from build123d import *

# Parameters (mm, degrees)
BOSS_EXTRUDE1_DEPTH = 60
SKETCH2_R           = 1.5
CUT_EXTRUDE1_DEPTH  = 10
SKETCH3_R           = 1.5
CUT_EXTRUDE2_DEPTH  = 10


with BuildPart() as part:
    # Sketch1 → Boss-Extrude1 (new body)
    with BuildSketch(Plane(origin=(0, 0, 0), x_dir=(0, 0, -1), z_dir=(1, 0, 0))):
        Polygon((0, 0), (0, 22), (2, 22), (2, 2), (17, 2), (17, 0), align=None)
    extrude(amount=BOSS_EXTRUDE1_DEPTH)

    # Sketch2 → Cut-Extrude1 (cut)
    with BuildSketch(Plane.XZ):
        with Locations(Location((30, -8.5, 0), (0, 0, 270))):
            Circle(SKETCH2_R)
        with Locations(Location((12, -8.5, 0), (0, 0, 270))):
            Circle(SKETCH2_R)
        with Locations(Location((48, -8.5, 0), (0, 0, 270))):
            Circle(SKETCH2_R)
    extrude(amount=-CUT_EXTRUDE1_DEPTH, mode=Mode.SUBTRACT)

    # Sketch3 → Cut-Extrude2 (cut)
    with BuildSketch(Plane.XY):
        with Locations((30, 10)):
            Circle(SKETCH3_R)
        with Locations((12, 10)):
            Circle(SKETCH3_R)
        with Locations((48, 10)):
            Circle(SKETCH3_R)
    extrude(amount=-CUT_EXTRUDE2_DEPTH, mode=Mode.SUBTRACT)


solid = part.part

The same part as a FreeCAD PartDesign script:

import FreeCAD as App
import Part
import Sketcher
from FreeCAD import Vector
Q = App.Units.Quantity


def add_polygon(sketch, points):
    """Adds a closed chain of lines whose ends are joined by coincident constraints."""
    first, n = sketch.GeometryCount, len(points)
    for a, b in zip(points, points[1:] + points[:1]):
        sketch.addGeometry(Part.LineSegment(App.Vector(*a, 0), App.Vector(*b, 0)), False)
    for i in range(n):
        sketch.addConstraint(Sketcher.Constraint("Coincident", first + i, 2, first + (i + 1) % n, 1))

doc = App.newDocument("Part")
params = doc.addObject("Spreadsheet::Sheet", "Params")
for row, (alias, value) in enumerate([
    ("sketch1_width", "22 mm"),
    ("sketch1_width2", "2 mm"),
    ("sketch1_height", "17 mm"),
    ("pad1_length", "60 mm"),
    ("sketch2_diameter", "3 mm"),
    ("pocket1_length", "10 mm"),
    ("sketch3_diameter", "3 mm"),
    ("pocket2_length", "10 mm"),
], start=1):
    params.set(f"A{row}", alias)
    params.set(f"B{row}", "=" + value)
    params.setAlias(f"B{row}", alias)

body = doc.addObject("PartDesign::Body", "Body")

# Sketch on YZ plane
sketch1 = body.newObject("Sketcher::SketchObject", "Sketch")
sketch1.AttachmentSupport = (doc.getObject("YZ_Plane"), [""])
sketch1.MapMode = "FlatFace"
add_polygon(sketch1, [(22, 0), (0, 0), (0, -17), (2, -17), (2, -2), (22, -2)])  # lines 0-5
sketch1.addConstraint([
    Sketcher.Constraint("Horizontal", 0),
    Sketcher.Constraint("Vertical", 1),
    Sketcher.Constraint("Horizontal", 2),
    Sketcher.Constraint("Vertical", 3),
    Sketcher.Constraint("Horizontal", 4),
    Sketcher.Constraint("Vertical", 5),
    Sketcher.Constraint("Coincident", 0, 2, -1, 1),
    Sketcher.Constraint("Equal", 2, 5),
    Sketcher.Constraint("DistanceX", 0, 2, 0, 1, Q("22 mm")),
    Sketcher.Constraint("DistanceX", 2, 1, 2, 2, Q("2 mm")),
    Sketcher.Constraint("DistanceY", 1, 2, 1, 1, Q("17 mm")),
])
sketch1.setExpression("Constraints[14]", "Params.sketch1_width")
sketch1.setExpression("Constraints[15]", "Params.sketch1_width2")
sketch1.setExpression("Constraints[16]", "Params.sketch1_height")
pad1 = body.newObject("PartDesign::Pad", "Pad")
pad1.Profile = sketch1
pad1.setExpression("Length", "Params.pad1_length")

# Sketch on XZ plane
sketch2 = body.newObject("Sketcher::SketchObject", "Sketch001")
sketch2.AttachmentSupport = (doc.getObject("XZ_Plane"), [""])
sketch2.MapMode = "FlatFace"
sketch2.addGeometry([
    Part.Circle(Vector(30, -8.5, 0), Vector(0, 0, 1), 1.5),
    Part.Circle(Vector(12, -8.5, 0), Vector(0, 0, 1), 1.5),
    Part.Circle(Vector(48, -8.5, 0), Vector(0, 0, 1), 1.5),
], False)
sketch2.addConstraint([
    Sketcher.Constraint("Equal", 0, 1),
    Sketcher.Constraint("Equal", 1, 2),
    Sketcher.Constraint("Horizontal", 0, 3, 1, 3),
    Sketcher.Constraint("Horizontal", 1, 3, 2, 3),
    Sketcher.Constraint("Diameter", 0, Q("3 mm")),
    Sketcher.Constraint("DistanceX", -1, 1, 0, 3, Q("30 mm")),
    Sketcher.Constraint("DistanceX", -1, 1, 1, 3, Q("12 mm")),
    Sketcher.Constraint("DistanceX", -1, 1, 2, 3, Q("48 mm")),
    Sketcher.Constraint("DistanceY", 0, 3, -1, 1, Q("8.5 mm")),
])
sketch2.setExpression("Constraints[4]", "Params.sketch2_diameter")
pocket1 = body.newObject("PartDesign::Pocket", "Pocket")
pocket1.Profile = sketch2
pocket1.setExpression("Length", "Params.pocket1_length")

# Sketch on XY plane
sketch3 = body.newObject("Sketcher::SketchObject", "Sketch002")
sketch3.AttachmentSupport = (doc.getObject("XY_Plane"), [""])
sketch3.MapMode = "FlatFace"
sketch3.addGeometry([
    Part.Circle(Vector(30, 10, 0), Vector(0, 0, 1), 1.5),
    Part.Circle(Vector(12, 10, 0), Vector(0, 0, 1), 1.5),
    Part.Circle(Vector(48, 10, 0), Vector(0, 0, 1), 1.5),
], False)
sketch3.addConstraint([
    Sketcher.Constraint("Equal", 0, 1),
    Sketcher.Constraint("Equal", 1, 2),
    Sketcher.Constraint("Horizontal", 0, 3, 1, 3),
    Sketcher.Constraint("Horizontal", 1, 3, 2, 3),
    Sketcher.Constraint("Diameter", 0, Q("3 mm")),
    Sketcher.Constraint("DistanceX", -1, 1, 0, 3, Q("30 mm")),
    Sketcher.Constraint("DistanceY", -1, 1, 0, 3, Q("10 mm")),
    Sketcher.Constraint("DistanceX", -1, 1, 1, 3, Q("12 mm")),
    Sketcher.Constraint("DistanceX", -1, 1, 2, 3, Q("48 mm")),
])
sketch3.setExpression("Constraints[4]", "Params.sketch3_diameter")
pocket2 = body.newObject("PartDesign::Pocket", "Pocket001")
pocket2.Profile = sketch3
pocket2.setExpression("Length", "Params.pocket2_length")

doc.recompute()
